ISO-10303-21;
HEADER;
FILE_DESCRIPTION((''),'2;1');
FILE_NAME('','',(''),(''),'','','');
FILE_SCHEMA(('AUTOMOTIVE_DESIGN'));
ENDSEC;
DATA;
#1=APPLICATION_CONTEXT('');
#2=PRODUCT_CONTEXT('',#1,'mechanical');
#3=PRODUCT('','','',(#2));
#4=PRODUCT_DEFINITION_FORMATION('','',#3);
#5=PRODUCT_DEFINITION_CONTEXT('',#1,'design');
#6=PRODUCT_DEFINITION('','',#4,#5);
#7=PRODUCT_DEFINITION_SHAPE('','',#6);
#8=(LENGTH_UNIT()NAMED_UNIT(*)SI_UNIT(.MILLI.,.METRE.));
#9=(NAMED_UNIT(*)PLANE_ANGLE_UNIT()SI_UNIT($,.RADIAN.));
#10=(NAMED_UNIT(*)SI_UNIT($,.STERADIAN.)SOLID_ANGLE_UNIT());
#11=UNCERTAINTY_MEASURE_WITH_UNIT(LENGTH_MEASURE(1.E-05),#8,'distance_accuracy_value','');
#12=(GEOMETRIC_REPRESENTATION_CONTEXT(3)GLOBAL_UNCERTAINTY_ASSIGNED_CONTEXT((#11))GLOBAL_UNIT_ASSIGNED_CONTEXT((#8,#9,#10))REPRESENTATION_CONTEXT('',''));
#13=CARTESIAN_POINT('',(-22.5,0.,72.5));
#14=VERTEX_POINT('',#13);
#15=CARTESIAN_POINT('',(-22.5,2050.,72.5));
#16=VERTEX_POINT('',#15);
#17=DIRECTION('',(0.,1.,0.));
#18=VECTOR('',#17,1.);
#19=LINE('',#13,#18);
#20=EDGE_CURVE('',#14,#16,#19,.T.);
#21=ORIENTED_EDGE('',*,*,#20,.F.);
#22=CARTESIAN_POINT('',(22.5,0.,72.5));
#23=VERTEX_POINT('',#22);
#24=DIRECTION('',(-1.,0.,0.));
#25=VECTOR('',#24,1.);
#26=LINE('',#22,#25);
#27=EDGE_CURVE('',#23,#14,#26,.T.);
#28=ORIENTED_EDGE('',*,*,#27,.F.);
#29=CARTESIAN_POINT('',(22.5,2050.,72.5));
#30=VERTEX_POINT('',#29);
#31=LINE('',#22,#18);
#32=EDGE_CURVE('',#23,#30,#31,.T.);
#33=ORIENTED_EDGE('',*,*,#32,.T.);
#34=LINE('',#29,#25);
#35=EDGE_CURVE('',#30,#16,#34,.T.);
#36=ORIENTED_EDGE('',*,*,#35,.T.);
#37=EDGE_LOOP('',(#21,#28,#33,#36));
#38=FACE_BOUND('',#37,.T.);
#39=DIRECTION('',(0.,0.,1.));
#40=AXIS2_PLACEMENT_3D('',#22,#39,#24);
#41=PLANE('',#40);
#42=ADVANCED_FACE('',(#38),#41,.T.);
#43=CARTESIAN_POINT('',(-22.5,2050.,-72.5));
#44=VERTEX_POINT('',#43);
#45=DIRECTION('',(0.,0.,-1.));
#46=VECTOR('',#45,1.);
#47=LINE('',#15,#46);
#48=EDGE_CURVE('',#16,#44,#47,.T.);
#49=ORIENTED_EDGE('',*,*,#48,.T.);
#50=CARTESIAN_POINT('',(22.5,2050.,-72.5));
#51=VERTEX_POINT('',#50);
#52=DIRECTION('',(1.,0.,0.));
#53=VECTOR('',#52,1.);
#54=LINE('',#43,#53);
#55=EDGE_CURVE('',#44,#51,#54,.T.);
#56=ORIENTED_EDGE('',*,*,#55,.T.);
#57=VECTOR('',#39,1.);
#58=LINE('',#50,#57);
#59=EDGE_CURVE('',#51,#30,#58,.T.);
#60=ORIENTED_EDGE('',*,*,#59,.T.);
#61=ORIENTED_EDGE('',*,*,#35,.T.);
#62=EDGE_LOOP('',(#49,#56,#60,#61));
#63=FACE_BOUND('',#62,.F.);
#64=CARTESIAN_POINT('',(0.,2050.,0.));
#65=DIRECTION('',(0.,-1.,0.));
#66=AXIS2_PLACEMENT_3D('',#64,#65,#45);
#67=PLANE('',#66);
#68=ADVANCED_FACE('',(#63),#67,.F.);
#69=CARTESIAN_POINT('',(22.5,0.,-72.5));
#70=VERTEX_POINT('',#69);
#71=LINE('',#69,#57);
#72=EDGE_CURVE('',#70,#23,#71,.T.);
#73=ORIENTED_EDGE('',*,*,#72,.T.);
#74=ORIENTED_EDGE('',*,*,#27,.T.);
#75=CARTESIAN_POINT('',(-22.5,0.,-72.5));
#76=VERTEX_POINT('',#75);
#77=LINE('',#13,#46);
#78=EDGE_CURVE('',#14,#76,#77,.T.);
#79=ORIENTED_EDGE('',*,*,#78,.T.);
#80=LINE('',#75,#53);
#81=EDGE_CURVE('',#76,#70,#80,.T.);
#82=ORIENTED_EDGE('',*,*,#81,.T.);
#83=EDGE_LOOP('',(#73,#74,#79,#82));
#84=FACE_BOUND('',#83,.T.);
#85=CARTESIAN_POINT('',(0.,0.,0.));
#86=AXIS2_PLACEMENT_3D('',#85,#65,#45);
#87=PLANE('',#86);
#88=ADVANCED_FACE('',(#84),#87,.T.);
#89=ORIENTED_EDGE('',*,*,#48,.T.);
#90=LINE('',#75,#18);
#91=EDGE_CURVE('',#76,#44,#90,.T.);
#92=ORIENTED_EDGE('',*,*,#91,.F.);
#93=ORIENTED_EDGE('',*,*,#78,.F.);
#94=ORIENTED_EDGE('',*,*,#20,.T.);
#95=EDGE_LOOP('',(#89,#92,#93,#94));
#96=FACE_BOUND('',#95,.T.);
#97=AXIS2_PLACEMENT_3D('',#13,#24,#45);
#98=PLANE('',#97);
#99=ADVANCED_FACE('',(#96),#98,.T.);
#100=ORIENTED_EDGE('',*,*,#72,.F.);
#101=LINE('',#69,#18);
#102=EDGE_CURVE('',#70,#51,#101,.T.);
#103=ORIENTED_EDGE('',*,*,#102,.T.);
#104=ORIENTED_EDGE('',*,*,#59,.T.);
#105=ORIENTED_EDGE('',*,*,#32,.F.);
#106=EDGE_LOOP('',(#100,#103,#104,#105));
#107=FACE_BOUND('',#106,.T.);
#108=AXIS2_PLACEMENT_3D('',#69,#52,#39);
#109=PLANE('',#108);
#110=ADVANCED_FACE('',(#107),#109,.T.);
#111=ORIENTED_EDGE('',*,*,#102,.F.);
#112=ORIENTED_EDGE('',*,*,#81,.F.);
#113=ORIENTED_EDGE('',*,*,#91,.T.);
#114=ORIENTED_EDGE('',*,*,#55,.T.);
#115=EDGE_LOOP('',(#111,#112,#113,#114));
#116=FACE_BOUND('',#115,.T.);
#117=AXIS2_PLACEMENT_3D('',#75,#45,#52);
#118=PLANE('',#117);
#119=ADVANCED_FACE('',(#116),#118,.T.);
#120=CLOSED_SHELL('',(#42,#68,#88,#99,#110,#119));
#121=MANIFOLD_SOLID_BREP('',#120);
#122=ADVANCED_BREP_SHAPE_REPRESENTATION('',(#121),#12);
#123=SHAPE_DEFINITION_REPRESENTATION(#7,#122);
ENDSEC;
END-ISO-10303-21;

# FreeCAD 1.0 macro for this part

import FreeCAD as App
import Part
import Sketcher
from FreeCAD import Vector
Q = App.Units.Quantity

doc = App.newDocument("Part")
body = doc.addObject("PartDesign::Body", "Body")

# Sketch on XZ plane
sketch1 = body.newObject("Sketcher::SketchObject", "Sketch")
sketch1.AttachmentSupport = (doc.getObject("XZ_Plane"), [""])
sketch1.MapMode = "FlatFace"
sketch1.addGeometry(Part.LineSegment(Vector(-22.5, 72.5, 0), Vector(-22.5, -72.5, 0)), False)
sketch1.addGeometry(Part.LineSegment(Vector(-22.5, -72.5, 0), Vector(22.5, -72.5, 0)), False)
sketch1.addGeometry(Part.LineSegment(Vector(22.5, -72.5, 0), Vector(22.5, 72.5, 0)), False)
sketch1.addGeometry(Part.LineSegment(Vector(22.5, 72.5, 0), Vector(-22.5, 72.5, 0)), False)
sketch1.addConstraint(Sketcher.Constraint("Coincident", 0, 2, 1, 1))
sketch1.addConstraint(Sketcher.Constraint("Coincident", 1, 2, 2, 1))
sketch1.addConstraint(Sketcher.Constraint("Coincident", 2, 2, 3, 1))
sketch1.addConstraint(Sketcher.Constraint("Coincident", 3, 2, 0, 1))
sketch1.addConstraint(Sketcher.Constraint("Vertical", 0))
sketch1.addConstraint(Sketcher.Constraint("Horizontal", 1))
sketch1.addConstraint(Sketcher.Constraint("Vertical", 2))
sketch1.addConstraint(Sketcher.Constraint("Horizontal", 3))
sketch1.addConstraint(Sketcher.Constraint("Symmetric", 0, 2, 2, 2, -1, 1))
sketch1.addConstraint(Sketcher.Constraint("DistanceX", 1, 1, 1, 2, Q("45 mm")))
sketch1.addConstraint(Sketcher.Constraint("DistanceY", 0, 2, 0, 1, Q("145 mm")))
pad1 = body.newObject("PartDesign::Pad", "Pad")
pad1.Profile = sketch1
pad1.Length = 2050
pad1.Reversed = True

doc.recompute()
